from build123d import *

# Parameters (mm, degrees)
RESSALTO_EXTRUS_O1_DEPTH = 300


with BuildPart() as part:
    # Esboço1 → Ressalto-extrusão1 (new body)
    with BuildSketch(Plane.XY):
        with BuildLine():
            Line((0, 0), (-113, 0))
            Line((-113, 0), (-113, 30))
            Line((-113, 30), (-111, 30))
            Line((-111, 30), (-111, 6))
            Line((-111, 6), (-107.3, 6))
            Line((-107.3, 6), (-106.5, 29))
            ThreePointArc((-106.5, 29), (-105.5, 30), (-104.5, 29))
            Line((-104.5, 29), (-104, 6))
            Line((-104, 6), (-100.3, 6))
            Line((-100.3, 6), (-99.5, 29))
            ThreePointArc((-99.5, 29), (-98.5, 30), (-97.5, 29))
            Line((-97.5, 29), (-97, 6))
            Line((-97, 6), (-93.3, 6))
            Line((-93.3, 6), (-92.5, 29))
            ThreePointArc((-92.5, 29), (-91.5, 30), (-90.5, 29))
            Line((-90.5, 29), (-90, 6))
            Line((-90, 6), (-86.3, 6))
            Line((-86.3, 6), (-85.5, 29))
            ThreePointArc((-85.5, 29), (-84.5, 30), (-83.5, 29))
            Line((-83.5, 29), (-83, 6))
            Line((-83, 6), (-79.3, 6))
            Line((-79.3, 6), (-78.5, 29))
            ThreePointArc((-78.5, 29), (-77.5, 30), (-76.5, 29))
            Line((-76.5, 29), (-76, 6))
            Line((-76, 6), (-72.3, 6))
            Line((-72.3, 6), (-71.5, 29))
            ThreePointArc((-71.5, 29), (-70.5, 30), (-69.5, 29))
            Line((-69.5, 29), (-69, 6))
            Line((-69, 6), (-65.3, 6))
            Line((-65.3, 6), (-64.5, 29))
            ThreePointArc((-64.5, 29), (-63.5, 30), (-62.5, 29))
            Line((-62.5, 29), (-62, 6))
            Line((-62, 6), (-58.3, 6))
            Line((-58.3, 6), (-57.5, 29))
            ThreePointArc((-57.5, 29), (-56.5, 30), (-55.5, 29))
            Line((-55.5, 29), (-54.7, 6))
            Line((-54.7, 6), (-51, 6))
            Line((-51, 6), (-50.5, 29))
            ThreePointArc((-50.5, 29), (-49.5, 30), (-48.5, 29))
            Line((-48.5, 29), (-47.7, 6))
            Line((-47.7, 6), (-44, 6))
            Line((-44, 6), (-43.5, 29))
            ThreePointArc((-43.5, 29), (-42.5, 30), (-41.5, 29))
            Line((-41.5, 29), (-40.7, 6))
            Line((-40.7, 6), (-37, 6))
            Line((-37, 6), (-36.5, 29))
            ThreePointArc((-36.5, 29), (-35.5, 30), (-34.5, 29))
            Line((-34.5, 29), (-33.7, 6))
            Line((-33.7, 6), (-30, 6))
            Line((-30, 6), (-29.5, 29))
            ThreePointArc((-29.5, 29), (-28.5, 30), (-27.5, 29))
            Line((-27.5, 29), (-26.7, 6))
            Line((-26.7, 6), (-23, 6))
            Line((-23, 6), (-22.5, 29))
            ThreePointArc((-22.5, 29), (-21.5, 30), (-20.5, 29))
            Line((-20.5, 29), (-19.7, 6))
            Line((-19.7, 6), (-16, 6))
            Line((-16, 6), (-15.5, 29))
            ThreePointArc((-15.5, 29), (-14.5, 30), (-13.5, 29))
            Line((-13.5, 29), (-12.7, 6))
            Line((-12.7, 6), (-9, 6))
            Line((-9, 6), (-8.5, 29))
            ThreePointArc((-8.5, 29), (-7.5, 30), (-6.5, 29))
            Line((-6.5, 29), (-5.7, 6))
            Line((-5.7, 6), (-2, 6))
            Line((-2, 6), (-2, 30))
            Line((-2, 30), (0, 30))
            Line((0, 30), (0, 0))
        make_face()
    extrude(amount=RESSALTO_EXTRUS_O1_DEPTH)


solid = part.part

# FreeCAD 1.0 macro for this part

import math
import FreeCAD as App
import Part
import Sketcher

V = App.Vector

doc = App.newDocument("Part")
params = doc.addObject("Spreadsheet::Sheet", "Params")
for row, (alias, value) in enumerate([
    ("sketch1_radius", "1 mm"),
    ("sketch1_width", "113 mm"),
    ("sketch1_width2", "2 mm"),
    ("sketch1_height", "30 mm"),
    ("sketch1_height2", "24 mm"),
    ("pad1_length", "300 mm"),
], start=1):
    params.set(f"A{row}", alias)
    params.set(f"B{row}", "=" + value)
    params.setAlias(f"B{row}", alias)

body = doc.addObject("PartDesign::Body", "Body")

# Sketch on XY plane
sketch1 = body.newObject("Sketcher::SketchObject", "Sketch")
sketch1.AttachmentSupport = (doc.getObject("XY_Plane"), [""])
sketch1.MapMode = "FlatFace"
sketch1.addGeometry([
    Part.LineSegment(V(-113, 0, 0), V(0, 0, 0)),  # 0
    Part.LineSegment(V(0, 0, 0), V(0, 30, 0)),  # 1
    Part.LineSegment(V(0, 30, 0), V(-2, 30, 0)),  # 2
    Part.LineSegment(V(-2, 30, 0), V(-2, 6, 0)),  # 3
    Part.LineSegment(V(-2, 6, 0), V(-5.7, 6, 0)),  # 4
    Part.LineSegment(V(-5.7, 6, 0), V(-6.5, 29, 0)),  # 5
    Part.ArcOfCircle(Part.Circle(V(-7.5, 29, 0), V(0, 0, 1), 1), math.radians(0), math.radians(180)),  # 6
    Part.LineSegment(V(-8.5, 29, 0), V(-9, 6, 0)),  # 7
    Part.LineSegment(V(-9, 6, 0), V(-12.7, 6, 0)),  # 8
    Part.LineSegment(V(-12.7, 6, 0), V(-13.5, 29, 0)),  # 9
    Part.ArcOfCircle(Part.Circle(V(-14.5, 29, 0), V(0, 0, 1), 1), math.radians(0), math.radians(180)),  # 10
    Part.LineSegment(V(-15.5, 29, 0), V(-16, 6, 0)),  # 11
    Part.LineSegment(V(-16, 6, 0), V(-19.7, 6, 0)),  # 12
    Part.LineSegment(V(-19.7, 6, 0), V(-20.5, 29, 0)),  # 13
    Part.ArcOfCircle(Part.Circle(V(-21.5, 29, 0), V(0, 0, 1), 1), math.radians(0), math.radians(180)),  # 14
    Part.LineSegment(V(-22.5, 29, 0), V(-23, 6, 0)),  # 15
    Part.LineSegment(V(-23, 6, 0), V(-26.7, 6, 0)),  # 16
    Part.LineSegment(V(-26.7, 6, 0), V(-27.5, 29, 0)),  # 17
    Part.ArcOfCircle(Part.Circle(V(-28.5, 29, 0), V(0, 0, 1), 1), math.radians(0), math.radians(180)),  # 18
    Part.LineSegment(V(-29.5, 29, 0), V(-30, 6, 0)),  # 19
    Part.LineSegment(V(-30, 6, 0), V(-33.7, 6, 0)),  # 20
    Part.LineSegment(V(-33.7, 6, 0), V(-34.5, 29, 0)),  # 21
    Part.ArcOfCircle(Part.Circle(V(-35.5, 29, 0), V(0, 0, 1), 1), math.radians(0), math.radians(180)),  # 22
    Part.LineSegment(V(-36.5, 29, 0), V(-37, 6, 0)),  # 23
    Part.LineSegment(V(-37, 6, 0), V(-40.7, 6, 0)),  # 24
    Part.LineSegment(V(-40.7, 6, 0), V(-41.5, 29, 0)),  # 25
    Part.ArcOfCircle(Part.Circle(V(-42.5, 29, 0), V(0, 0, 1), 1), math.radians(0), math.radians(180)),  # 26
    Part.LineSegment(V(-43.5, 29, 0), V(-44, 6, 0)),  # 27
    Part.LineSegment(V(-44, 6, 0), V(-47.7, 6, 0)),  # 28
    Part.LineSegment(V(-47.7, 6, 0), V(-48.5, 29, 0)),  # 29
    Part.ArcOfCircle(Part.Circle(V(-49.5, 29, 0), V(0, 0, 1), 1), math.radians(0), math.radians(180)),  # 30
    Part.LineSegment(V(-50.5, 29, 0), V(-51, 6, 0)),  # 31
    Part.LineSegment(V(-51, 6, 0), V(-54.7, 6, 0)),  # 32
    Part.LineSegment(V(-54.7, 6, 0), V(-55.5, 29, 0)),  # 33
    Part.ArcOfCircle(Part.Circle(V(-56.5, 29, 0), V(0, 0, 1), 1), math.radians(0), math.radians(180)),  # 34
    Part.LineSegment(V(-57.5, 29, 0), V(-58.3, 6, 0)),  # 35
    Part.LineSegment(V(-58.3, 6, 0), V(-62, 6, 0)),  # 36
    Part.LineSegment(V(-62, 6, 0), V(-62.5, 29, 0)),  # 37
    Part.ArcOfCircle(Part.Circle(V(-63.5, 29, 0), V(0, 0, 1), 1), math.radians(0), math.radians(180)),  # 38
    Part.LineSegment(V(-64.5, 29, 0), V(-65.3, 6, 0)),  # 39
    Part.LineSegment(V(-65.3, 6, 0), V(-69, 6, 0)),  # 40
    Part.LineSegment(V(-69, 6, 0), V(-69.5, 29, 0)),  # 41
    Part.ArcOfCircle(Part.Circle(V(-70.5, 29, 0), V(0, 0, 1), 1), math.radians(0), math.radians(180)),  # 42
    Part.LineSegment(V(-71.5, 29, 0), V(-72.3, 6, 0)),  # 43
    Part.LineSegment(V(-72.3, 6, 0), V(-76, 6, 0)),  # 44
    Part.LineSegment(V(-76, 6, 0), V(-76.5, 29, 0)),  # 45
    Part.ArcOfCircle(Part.Circle(V(-77.5, 29, 0), V(0, 0, 1), 1), math.radians(0), math.radians(180)),  # 46
    Part.LineSegment(V(-78.5, 29, 0), V(-79.3, 6, 0)),  # 47
    Part.LineSegment(V(-79.3, 6, 0), V(-83, 6, 0)),  # 48
    Part.LineSegment(V(-83, 6, 0), V(-83.5, 29, 0)),  # 49
    Part.ArcOfCircle(Part.Circle(V(-84.5, 29, 0), V(0, 0, 1), 1), math.radians(0), math.radians(180)),  # 50
    Part.LineSegment(V(-85.5, 29, 0), V(-86.3, 6, 0)),  # 51
    Part.LineSegment(V(-86.3, 6, 0), V(-90, 6, 0)),  # 52
    Part.LineSegment(V(-90, 6, 0), V(-90.5, 29, 0)),  # 53
    Part.ArcOfCircle(Part.Circle(V(-91.5, 29, 0), V(0, 0, 1), 1), math.radians(0), math.radians(180)),  # 54
    Part.LineSegment(V(-92.5, 29, 0), V(-93.3, 6, 0)),  # 55
    Part.LineSegment(V(-93.3, 6, 0), V(-97, 6, 0)),  # 56
    Part.LineSegment(V(-97, 6, 0), V(-97.5, 29, 0)),  # 57
    Part.ArcOfCircle(Part.Circle(V(-98.5, 29, 0), V(0, 0, 1), 1), math.radians(0), math.radians(180)),  # 58
    Part.LineSegment(V(-99.5, 29, 0), V(-100.3, 6, 0)),  # 59
    Part.LineSegment(V(-100.3, 6, 0), V(-104, 6, 0)),  # 60
    Part.LineSegment(V(-104, 6, 0), V(-104.5, 29, 0)),  # 61
    Part.ArcOfCircle(Part.Circle(V(-105.5, 29, 0), V(0, 0, 1), 1), math.radians(0), math.radians(180)),  # 62
    Part.LineSegment(V(-106.5, 29, 0), V(-107.3, 6, 0)),  # 63
    Part.LineSegment(V(-107.3, 6, 0), V(-111, 6, 0)),  # 64
    Part.LineSegment(V(-111, 6, 0), V(-111, 30, 0)),  # 65
    Part.LineSegment(V(-111, 30, 0), V(-113, 30, 0)),  # 66
    Part.LineSegment(V(-113, 30, 0), V(-113, 0, 0)),  # 67
], False)
sketch1.addConstraint([
    Sketcher.Constraint("Coincident", 0, 2, 1, 1),
    Sketcher.Constraint("Coincident", 1, 2, 2, 1),
    Sketcher.Constraint("Coincident", 2, 2, 3, 1),
    Sketcher.Constraint("Coincident", 3, 2, 4, 1),
    Sketcher.Constraint("Coincident", 4, 2, 5, 1),
    Sketcher.Constraint("Coincident", 5, 2, 6, 1),
    Sketcher.Constraint("Coincident", 6, 2, 7, 1),
    Sketcher.Constraint("Coincident", 7, 2, 8, 1),
    Sketcher.Constraint("Coincident", 8, 2, 9, 1),
    Sketcher.Constraint("Coincident", 9, 2, 10, 1),
    Sketcher.Constraint("Coincident", 10, 2, 11, 1),
    Sketcher.Constraint("Coincident", 11, 2, 12, 1),
    Sketcher.Constraint("Coincident", 12, 2, 13, 1),
    Sketcher.Constraint("Coincident", 13, 2, 14, 1),
    Sketcher.Constraint("Coincident", 14, 2, 15, 1),
    Sketcher.Constraint("Coincident", 15, 2, 16, 1),
    Sketcher.Constraint("Coincident", 16, 2, 17, 1),
    Sketcher.Constraint("Coincident", 17, 2, 18, 1),
    Sketcher.Constraint("Coincident", 18, 2, 19, 1),
    Sketcher.Constraint("Coincident", 19, 2, 20, 1),
    Sketcher.Constraint("Coincident", 20, 2, 21, 1),
    Sketcher.Constraint("Coincident", 21, 2, 22, 1),
    Sketcher.Constraint("Coincident", 22, 2, 23, 1),
    Sketcher.Constraint("Coincident", 23, 2, 24, 1),
    Sketcher.Constraint("Coincident", 24, 2, 25, 1),
    Sketcher.Constraint("Coincident", 25, 2, 26, 1),
    Sketcher.Constraint("Coincident", 26, 2, 27, 1),
    Sketcher.Constraint("Coincident", 27, 2, 28, 1),
    Sketcher.Constraint("Coincident", 28, 2, 29, 1),
    Sketcher.Constraint("Coincident", 29, 2, 30, 1),
    Sketcher.Constraint("Coincident", 30, 2, 31, 1),
    Sketcher.Constraint("Coincident", 31, 2, 32, 1),
    Sketcher.Constraint("Coincident", 32, 2, 33, 1),
    Sketcher.Constraint("Coincident", 33, 2, 34, 1),
    Sketcher.Constraint("Coincident", 34, 2, 35, 1),
    Sketcher.Constraint("Coincident", 35, 2, 36, 1),
    Sketcher.Constraint("Coincident", 36, 2, 37, 1),
    Sketcher.Constraint("Coincident", 37, 2, 38, 1),
    Sketcher.Constraint("Coincident", 38, 2, 39, 1),
    Sketcher.Constraint("Coincident", 39, 2, 40, 1),
    Sketcher.Constraint("Coincident", 40, 2, 41, 1),
    Sketcher.Constraint("Coincident", 41, 2, 42, 1),
    Sketcher.Constraint("Coincident", 42, 2, 43, 1),
    Sketcher.Constraint("Coincident", 43, 2, 44, 1),
    Sketcher.Constraint("Coincident", 44, 2, 45, 1),
    Sketcher.Constraint("Coincident", 45, 2, 46, 1),
    Sketcher.Constraint("Coincident", 46, 2, 47, 1),
    Sketcher.Constraint("Coincident", 47, 2, 48, 1),
    Sketcher.Constraint("Coincident", 48, 2, 49, 1),
    Sketcher.Constraint("Coincident", 49, 2, 50, 1),
    Sketcher.Constraint("Coincident", 50, 2, 51, 1),
    Sketcher.Constraint("Coincident", 51, 2, 52, 1),
    Sketcher.Constraint("Coincident", 52, 2, 53, 1),
    Sketcher.Constraint("Coincident", 53, 2, 54, 1),
    Sketcher.Constraint("Coincident", 54, 2, 55, 1),
    Sketcher.Constraint("Coincident", 55, 2, 56, 1),
    Sketcher.Constraint("Coincident", 56, 2, 57, 1),
    Sketcher.Constraint("Coincident", 57, 2, 58, 1),
    Sketcher.Constraint("Coincident", 58, 2, 59, 1),
    Sketcher.Constraint("Coincident", 59, 2, 60, 1),
    Sketcher.Constraint("Coincident", 60, 2, 61, 1),
    Sketcher.Constraint("Coincident", 61, 2, 62, 1),
    Sketcher.Constraint("Coincident", 62, 2, 63, 1),
    Sketcher.Constraint("Coincident", 63, 2, 64, 1),
    Sketcher.Constraint("Coincident", 64, 2, 65, 1),
    Sketcher.Constraint("Coincident", 65, 2, 66, 1),
    Sketcher.Constraint("Coincident", 66, 2, 67, 1),
    Sketcher.Constraint("Coincident", 67, 2, 0, 1),
    Sketcher.Constraint("Horizontal", 0),
    Sketcher.Constraint("Vertical", 1),
    Sketcher.Constraint("Horizontal", 2),
    Sketcher.Constraint("Vertical", 3),
    Sketcher.Constraint("Horizontal", 4),
    Sketcher.Constraint("Horizontal", 8),
    Sketcher.Constraint("Horizontal", 12),
    Sketcher.Constraint("Horizontal", 16),
    Sketcher.Constraint("Horizontal", 20),
    Sketcher.Constraint("Horizontal", 24),
    Sketcher.Constraint("Horizontal", 28),
    Sketcher.Constraint("Horizontal", 32),
    Sketcher.Constraint("Horizontal", 36),
    Sketcher.Constraint("Horizontal", 40),
    Sketcher.Constraint("Horizontal", 44),
    Sketcher.Constraint("Horizontal", 48),
    Sketcher.Constraint("Horizontal", 52),
    Sketcher.Constraint("Horizontal", 56),
    Sketcher.Constraint("Horizontal", 60),
    Sketcher.Constraint("Horizontal", 64),
    Sketcher.Constraint("Vertical", 65),
    Sketcher.Constraint("Horizontal", 66),
    Sketcher.Constraint("Vertical", 67),
    Sketcher.Constraint("Coincident", 0, 2, -1, 1),
    Sketcher.Constraint("Equal", 6, 10),
    Sketcher.Constraint("Equal", 10, 14),
    Sketcher.Constraint("Equal", 14, 18),
    Sketcher.Constraint("Equal", 18, 22),
    Sketcher.Constraint("Equal", 22, 26),
    Sketcher.Constraint("Equal", 26, 30),
    Sketcher.Constraint("Equal", 30, 34),
    Sketcher.Constraint("Equal", 34, 38),
    Sketcher.Constraint("Equal", 38, 42),
    Sketcher.Constraint("Equal", 42, 46),
    Sketcher.Constraint("Equal", 46, 50),
    Sketcher.Constraint("Equal", 50, 54),
    Sketcher.Constraint("Equal", 54, 58),
    Sketcher.Constraint("Equal", 58, 62),
    Sketcher.Constraint("Parallel", 5, 9),
    Sketcher.Constraint("Parallel", 7, 11),
    Sketcher.Constraint("Parallel", 9, 13),
    Sketcher.Constraint("Parallel", 11, 15),
    Sketcher.Constraint("Parallel", 13, 17),
    Sketcher.Constraint("Parallel", 15, 19),
    Sketcher.Constraint("Parallel", 17, 21),
    Sketcher.Constraint("Parallel", 19, 23),
    Sketcher.Constraint("Parallel", 21, 25),
    Sketcher.Constraint("Parallel", 23, 27),
    Sketcher.Constraint("Parallel", 25, 29),
    Sketcher.Constraint("Parallel", 27, 31),
    Sketcher.Constraint("Parallel", 29, 33),
    Sketcher.Constraint("Parallel", 35, 39),
    Sketcher.Constraint("Parallel", 37, 41),
    Sketcher.Constraint("Parallel", 39, 43),
    Sketcher.Constraint("Parallel", 41, 45),
    Sketcher.Constraint("Parallel", 43, 47),
    Sketcher.Constraint("Parallel", 45, 49),
    Sketcher.Constraint("Parallel", 47, 51),
    Sketcher.Constraint("Parallel", 49, 53),
    Sketcher.Constraint("Parallel", 51, 55),
    Sketcher.Constraint("Parallel", 53, 57),
    Sketcher.Constraint("Parallel", 55, 59),
    Sketcher.Constraint("Parallel", 57, 61),
    Sketcher.Constraint("Parallel", 59, 63),
    Sketcher.Constraint("Horizontal", 6, 3, 10, 3),
    Sketcher.Constraint("Horizontal", 10, 3, 14, 3),
    Sketcher.Constraint("Horizontal", 14, 3, 18, 3),
    Sketcher.Constraint("Horizontal", 18, 3, 22, 3),
    Sketcher.Constraint("Horizontal", 22, 3, 26, 3),
    Sketcher.Constraint("Horizontal", 26, 3, 30, 3),
    Sketcher.Constraint("Horizontal", 30, 3, 34, 3),
    Sketcher.Constraint("Horizontal", 34, 3, 38, 3),
    Sketcher.Constraint("Horizontal", 38, 3, 42, 3),
    Sketcher.Constraint("Horizontal", 42, 3, 46, 3),
    Sketcher.Constraint("Horizontal", 46, 3, 50, 3),
    Sketcher.Constraint("Horizontal", 50, 3, 54, 3),
    Sketcher.Constraint("Horizontal", 54, 3, 58, 3),
    Sketcher.Constraint("Horizontal", 58, 3, 62, 3),
    Sketcher.Constraint("Horizontal", 62, 3, 5, 2),
    Sketcher.Constraint("Horizontal", 5, 2, 6, 2),
    Sketcher.Constraint("Horizontal", 4, 2, 7, 2),
    Sketcher.Constraint("Horizontal", 6, 2, 9, 2),
    Sketcher.Constraint("Horizontal", 9, 2, 10, 2),
    Sketcher.Constraint("Horizontal", 8, 2, 11, 2),
    Sketcher.Constraint("Horizontal", 10, 2, 13, 2),
    Sketcher.Constraint("Horizontal", 13, 2, 14, 2),
    Sketcher.Constraint("Horizontal", 12, 2, 15, 2),
    Sketcher.Constraint("Horizontal", 14, 2, 17, 2),
    Sketcher.Constraint("Horizontal", 17, 2, 18, 2),
    Sketcher.Constraint("Horizontal", 16, 2, 19, 2),
    Sketcher.Constraint("Horizontal", 18, 2, 21, 2),
    Sketcher.Constraint("Horizontal", 21, 2, 22, 2),
    Sketcher.Constraint("Horizontal", 20, 2, 23, 2),
    Sketcher.Constraint("Horizontal", 22, 2, 25, 2),
    Sketcher.Constraint("Horizontal", 25, 2, 26, 2),
    Sketcher.Constraint("Horizontal", 24, 2, 27, 2),
    Sketcher.Constraint("Horizontal", 26, 2, 29, 2),
    Sketcher.Constraint("Horizontal", 29, 2, 30, 2),
    Sketcher.Constraint("Horizontal", 28, 2, 31, 2),
    Sketcher.Constraint("Horizontal", 30, 2, 33, 2),
    Sketcher.Constraint("Horizontal", 33, 2, 34, 2),
    Sketcher.Constraint("Horizontal", 32, 2, 35, 2),
    Sketcher.Constraint("Horizontal", 34, 2, 37, 2),
    Sketcher.Constraint("Horizontal", 37, 2, 38, 2),
    Sketcher.Constraint("Horizontal", 36, 2, 39, 2),
    Sketcher.Constraint("Horizontal", 38, 2, 41, 2),
    Sketcher.Constraint("Horizontal", 41, 2, 42, 2),
    Sketcher.Constraint("Horizontal", 40, 2, 43, 2),
    Sketcher.Constraint("Horizontal", 42, 2, 45, 2),
    Sketcher.Constraint("Horizontal", 45, 2, 46, 2),
    Sketcher.Constraint("Horizontal", 44, 2, 47, 2),
    Sketcher.Constraint("Horizontal", 46, 2, 49, 2),
    Sketcher.Constraint("Horizontal", 49, 2, 50, 2),
    Sketcher.Constraint("Horizontal", 48, 2, 51, 2),
    Sketcher.Constraint("Horizontal", 50, 2, 53, 2),
    Sketcher.Constraint("Horizontal", 53, 2, 54, 2),
    Sketcher.Constraint("Horizontal", 52, 2, 55, 2),
    Sketcher.Constraint("Horizontal", 54, 2, 57, 2),
    Sketcher.Constraint("Horizontal", 57, 2, 58, 2),
    Sketcher.Constraint("Horizontal", 56, 2, 59, 2),
    Sketcher.Constraint("Horizontal", 58, 2, 61, 2),
    Sketcher.Constraint("Horizontal", 61, 2, 62, 2),
    Sketcher.Constraint("Horizontal", 60, 2, 63, 2),
    Sketcher.Constraint("Horizontal", 2, 2, 65, 2),
    Sketcher.Constraint("Equal", 4, 8),
    Sketcher.Constraint("Equal", 8, 12),
    Sketcher.Constraint("Equal", 12, 16),
    Sketcher.Constraint("Equal", 16, 20),
    Sketcher.Constraint("Equal", 20, 24),
    Sketcher.Constraint("Equal", 24, 28),
    Sketcher.Constraint("Equal", 28, 32),
    Sketcher.Constraint("Equal", 32, 36),
    Sketcher.Constraint("Equal", 36, 40),
    Sketcher.Constraint("Equal", 40, 44),
    Sketcher.Constraint("Equal", 44, 48),
    Sketcher.Constraint("Equal", 48, 52),
    Sketcher.Constraint("Equal", 52, 56),
    Sketcher.Constraint("Equal", 56, 60),
    Sketcher.Constraint("Equal", 60, 64),
    Sketcher.Constraint("Equal", 2, 66),
    Sketcher.Constraint("Equal", 33, 35),
    Sketcher.Constraint("Radius", 6, 1.0),
    Sketcher.Constraint("DistanceX", 0, 1, 0, 2, 113.0),
    Sketcher.Constraint("DistanceX", 2, 2, 2, 1, 2.0),
    Sketcher.Constraint("DistanceY", 1, 1, 1, 2, 30.0),
    Sketcher.Constraint("DistanceY", 3, 2, 3, 1, 24.0),
    Sketcher.Constraint("DistanceX", 4, 2, 4, 1, 3.7),
    Sketcher.Constraint("DistanceY", -1, 1, 6, 3, 29.0),
    Sketcher.Constraint("DistanceX", 7, 2, -1, 1, 9.0),
    Sketcher.Constraint("DistanceX", 36, 2, -1, 1, 62.0),
])
sketch1.setExpression("Constraints[209]", "Params.sketch1_radius")
sketch1.setExpression("Constraints[210]", "Params.sketch1_width")
sketch1.setExpression("Constraints[211]", "Params.sketch1_width2")
sketch1.setExpression("Constraints[212]", "Params.sketch1_height")
sketch1.setExpression("Constraints[213]", "Params.sketch1_height2")
pad1 = body.newObject("PartDesign::Pad", "Pad")
pad1.Profile = sketch1
pad1.setExpression("Length", "Params.pad1_length")

doc.recompute()
